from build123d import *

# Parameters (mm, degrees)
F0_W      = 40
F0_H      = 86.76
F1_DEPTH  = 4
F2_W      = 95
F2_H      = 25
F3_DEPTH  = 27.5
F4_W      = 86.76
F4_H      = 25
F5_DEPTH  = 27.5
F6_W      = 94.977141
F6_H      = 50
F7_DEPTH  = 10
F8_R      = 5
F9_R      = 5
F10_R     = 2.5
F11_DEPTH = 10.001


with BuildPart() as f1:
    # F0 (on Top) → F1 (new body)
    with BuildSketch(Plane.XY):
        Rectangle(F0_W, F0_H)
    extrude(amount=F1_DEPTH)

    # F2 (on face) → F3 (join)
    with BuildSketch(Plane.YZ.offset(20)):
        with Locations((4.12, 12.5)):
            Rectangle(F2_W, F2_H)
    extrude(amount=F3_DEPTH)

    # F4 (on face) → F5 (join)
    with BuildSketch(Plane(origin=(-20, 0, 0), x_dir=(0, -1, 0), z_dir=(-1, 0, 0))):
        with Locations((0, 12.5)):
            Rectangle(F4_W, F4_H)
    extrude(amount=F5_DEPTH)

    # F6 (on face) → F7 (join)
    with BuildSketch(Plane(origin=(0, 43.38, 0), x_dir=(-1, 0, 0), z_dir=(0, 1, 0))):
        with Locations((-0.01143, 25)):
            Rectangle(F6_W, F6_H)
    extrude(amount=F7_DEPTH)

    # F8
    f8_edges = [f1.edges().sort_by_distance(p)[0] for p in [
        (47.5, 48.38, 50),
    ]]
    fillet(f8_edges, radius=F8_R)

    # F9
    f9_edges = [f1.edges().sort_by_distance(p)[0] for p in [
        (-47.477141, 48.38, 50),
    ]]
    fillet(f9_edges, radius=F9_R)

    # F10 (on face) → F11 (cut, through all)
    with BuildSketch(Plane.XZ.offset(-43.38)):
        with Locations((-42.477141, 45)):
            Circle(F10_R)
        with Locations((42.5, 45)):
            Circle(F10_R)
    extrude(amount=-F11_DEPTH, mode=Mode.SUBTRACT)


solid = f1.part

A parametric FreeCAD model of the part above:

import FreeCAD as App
import Part
import Sketcher
Q = App.Units.Quantity


def edges_at(feature, points):
    """Names of the edges that pass closest to the given points."""
    edges = feature.Shape.Edges
    near = lambda p: min(range(len(edges)), key=lambda i: edges[i].distToShape(Part.Vertex(*p))[0])
    return sorted({f"Edge{near(p) + 1}" for p in points})

doc = App.newDocument("Part")
body = doc.addObject("PartDesign::Body", "Body")

sketch1 = doc.addObject("Sketcher::SketchObject", "Sketch")
body.addObject(sketch1)
sketch1.AttachmentSupport = (doc.XY_Plane, [""])
sketch1.MapMode = "FlatFace"
sketch1.addGeometry([
    Part.LineSegment(App.Vector(-20, 43, 0), App.Vector(-20, -43, 0)),
    Part.LineSegment(App.Vector(-20, -43, 0), App.Vector(20, -43, 0)),
    Part.LineSegment(App.Vector(20, -43, 0), App.Vector(20, 43, 0)),
    Part.LineSegment(App.Vector(20, 43, 0), App.Vector(-20, 43, 0)),
], False)
sketch1.addConstraint([
    Sketcher.Constraint("Coincident", 0, 2, 1, 1),
    Sketcher.Constraint("Coincident", 1, 2, 2, 1),
    Sketcher.Constraint("Coincident", 2, 2, 3, 1),
    Sketcher.Constraint("Coincident", 3, 2, 0, 1),
    Sketcher.Constraint("Vertical", 0),
    Sketcher.Constraint("Horizontal", 1),
    Sketcher.Constraint("Vertical", 2),
    Sketcher.Constraint("Horizontal", 3),
    Sketcher.Constraint("Symmetric", 0, 2, 2, 2, -1, 1),
    Sketcher.Constraint("DistanceX", 1, 1, 1, 2, Q("40 mm")),
    Sketcher.Constraint("DistanceY", 0, 2, 0, 1, Q("86.76 mm")),
])
pad1 = doc.addObject("PartDesign::Pad", "Pad")
body.addObject(pad1)
pad1.Profile = sketch1
pad1.Length = 4

sketch2 = doc.addObject("Sketcher::SketchObject", "Sketch001")
body.addObject(sketch2)
sketch2.AttachmentSupport = (doc.YZ_Plane, [""])
sketch2.MapMode = "FlatFace"
sketch2.AttachmentOffset = App.Placement(App.Vector(0, 0, 20), App.Rotation())
sketch2.addGeometry([
    Part.LineSegment(App.Vector(-43, 25, 0), App.Vector(-43, 0, 0)),
    Part.LineSegment(App.Vector(-43, 0, 0), App.Vector(52, 0, 0)),
    Part.LineSegment(App.Vector(52, 0, 0), App.Vector(52, 25, 0)),
    Part.LineSegment(App.Vector(52, 25, 0), App.Vector(-43, 25, 0)),
], False)
sketch2.addConstraint([
    Sketcher.Constraint("Coincident", 0, 2, 1, 1),
    Sketcher.Constraint("Coincident", 1, 2, 2, 1),
    Sketcher.Constraint("Coincident", 2, 2, 3, 1),
    Sketcher.Constraint("Coincident", 3, 2, 0, 1),
    Sketcher.Constraint("Vertical", 0),
    Sketcher.Constraint("Horizontal", 1),
    Sketcher.Constraint("Vertical", 2),
    Sketcher.Constraint("Horizontal", 3),
    Sketcher.Constraint("PointOnObject", 0, 2, -1),
    Sketcher.Constraint("DistanceX", 1, 1, 1, 2, Q("95 mm")),
    Sketcher.Constraint("DistanceY", 0, 2, 0, 1, Q("25 mm")),
    Sketcher.Constraint("DistanceX", 0, 2, -1, 1, Q("43.38 mm")),
])
pad2 = doc.addObject("PartDesign::Pad", "Pad001")
body.addObject(pad2)
pad2.Profile = sketch2
pad2.Length = 27.5

sketch3 = doc.addObject("Sketcher::SketchObject", "Sketch002")
body.addObject(sketch3)
sketch3.AttachmentSupport = (doc.YZ_Plane, [""])
sketch3.MapMode = "FlatFace"
sketch3.AttachmentOffset = App.Placement(App.Vector(0, 0, -20), App.Rotation())
sketch3.addGeometry([
    Part.LineSegment(App.Vector(43, 25, 0), App.Vector(43, 0, 0)),
    Part.LineSegment(App.Vector(43, 0, 0), App.Vector(-43, 0, 0)),
    Part.LineSegment(App.Vector(-43, 0, 0), App.Vector(-43, 25, 0)),
    Part.LineSegment(App.Vector(-43, 25, 0), App.Vector(43, 25, 0)),
], False)
sketch3.addConstraint([
    Sketcher.Constraint("Coincident", 0, 2, 1, 1),
    Sketcher.Constraint("Coincident", 1, 2, 2, 1),
    Sketcher.Constraint("Coincident", 2, 2, 3, 1),
    Sketcher.Constraint("Coincident", 3, 2, 0, 1),
    Sketcher.Constraint("Vertical", 0),
    Sketcher.Constraint("Horizontal", 1),
    Sketcher.Constraint("Vertical", 2),
    Sketcher.Constraint("Horizontal", 3),
    Sketcher.Constraint("Symmetric", 0, 2, 1, 2, -1, 1),
    Sketcher.Constraint("DistanceY", 0, 2, 0, 1, Q("25 mm")),
    Sketcher.Constraint("DistanceX", 1, 2, 1, 1, Q("86.76 mm")),
])
pad3 = doc.addObject("PartDesign::Pad", "Pad002")
body.addObject(pad3)
pad3.Profile = sketch3
pad3.Length = 27.5
pad3.Reversed = True

sketch4 = doc.addObject("Sketcher::SketchObject", "Sketch003")
body.addObject(sketch4)
sketch4.AttachmentSupport = (doc.XZ_Plane, [""])
sketch4.MapMode = "FlatFace"
sketch4.AttachmentOffset = App.Placement(App.Vector(0, 0, -43.38), App.Rotation())
sketch4.addGeometry([
    Part.LineSegment(App.Vector(48, 50, 0), App.Vector(48, 0, 0)),
    Part.LineSegment(App.Vector(48, 0, 0), App.Vector(-47, 0, 0)),
    Part.LineSegment(App.Vector(-47, 0, 0), App.Vector(-47, 50, 0)),
    Part.LineSegment(App.Vector(-47, 50, 0), App.Vector(48, 50, 0)),
], False)
sketch4.addConstraint([
    Sketcher.Constraint("Coincident", 0, 2, 1, 1),
    Sketcher.Constraint("Coincident", 1, 2, 2, 1),
    Sketcher.Constraint("Coincident", 2, 2, 3, 1),
    Sketcher.Constraint("Coincident", 3, 2, 0, 1),
    Sketcher.Constraint("Vertical", 0),
    Sketcher.Constraint("Horizontal", 1),
    Sketcher.Constraint("Vertical", 2),
    Sketcher.Constraint("Horizontal", 3),
    Sketcher.Constraint("PointOnObject", 0, 2, -1),
    Sketcher.Constraint("DistanceY", 0, 2, 0, 1, Q("50 mm")),
    Sketcher.Constraint("DistanceX", -1, 1, 0, 2, Q("47.5 mm")),
    Sketcher.Constraint("DistanceX", 1, 2, 1, 1, Q("94.977141 mm")),
])
pad4 = doc.addObject("PartDesign::Pad", "Pad003")
body.addObject(pad4)
pad4.Profile = sketch4
pad4.Length = 10
pad4.Reversed = True
doc.recompute()

fillet = doc.addObject("PartDesign::Fillet", "Fillet")
body.addObject(fillet)
fillet.Base = (pad4, edges_at(pad4, [(47.5, 48.38, 50)]))
fillet.Radius = 5
doc.recompute()

fillet2 = doc.addObject("PartDesign::Fillet", "Fillet001")
body.addObject(fillet2)
fillet2.Base = (fillet, edges_at(fillet, [(-47.477, 48.38, 50)]))
fillet2.Radius = 5

sketch5 = doc.addObject("Sketcher::SketchObject", "Sketch004")
body.addObject(sketch5)
sketch5.AttachmentSupport = (doc.XZ_Plane, [""])
sketch5.MapMode = "FlatFace"
sketch5.AttachmentOffset = App.Placement(App.Vector(0, 0, -43.38), App.Rotation())
sketch5.addGeometry([
    Part.Circle(App.Vector(-42.5, 45, 0), App.Vector(0, 0, 1), 2.5),
    Part.Circle(App.Vector(42.5, 45, 0), App.Vector(0, 0, 1), 2.5),
], False)
sketch5.addConstraint([
    Sketcher.Constraint("Equal", 0, 1),
    Sketcher.Constraint("Horizontal", 0, 3, 1, 3),
    Sketcher.Constraint("Diameter", 0, Q("5 mm")),
    Sketcher.Constraint("DistanceY", -1, 1, 0, 3, Q("45 mm")),
    Sketcher.Constraint("DistanceX", -1, 1, 1, 3, Q("42.5 mm")),
    Sketcher.Constraint("DistanceX", 0, 3, -1, 1, Q("42.477141 mm")),
])
pocket1 = doc.addObject("PartDesign::Pocket", "Pocket")
body.addObject(pocket1)
pocket1.Profile = sketch5
pocket1.Type = "ThroughAll"

doc.recompute()
